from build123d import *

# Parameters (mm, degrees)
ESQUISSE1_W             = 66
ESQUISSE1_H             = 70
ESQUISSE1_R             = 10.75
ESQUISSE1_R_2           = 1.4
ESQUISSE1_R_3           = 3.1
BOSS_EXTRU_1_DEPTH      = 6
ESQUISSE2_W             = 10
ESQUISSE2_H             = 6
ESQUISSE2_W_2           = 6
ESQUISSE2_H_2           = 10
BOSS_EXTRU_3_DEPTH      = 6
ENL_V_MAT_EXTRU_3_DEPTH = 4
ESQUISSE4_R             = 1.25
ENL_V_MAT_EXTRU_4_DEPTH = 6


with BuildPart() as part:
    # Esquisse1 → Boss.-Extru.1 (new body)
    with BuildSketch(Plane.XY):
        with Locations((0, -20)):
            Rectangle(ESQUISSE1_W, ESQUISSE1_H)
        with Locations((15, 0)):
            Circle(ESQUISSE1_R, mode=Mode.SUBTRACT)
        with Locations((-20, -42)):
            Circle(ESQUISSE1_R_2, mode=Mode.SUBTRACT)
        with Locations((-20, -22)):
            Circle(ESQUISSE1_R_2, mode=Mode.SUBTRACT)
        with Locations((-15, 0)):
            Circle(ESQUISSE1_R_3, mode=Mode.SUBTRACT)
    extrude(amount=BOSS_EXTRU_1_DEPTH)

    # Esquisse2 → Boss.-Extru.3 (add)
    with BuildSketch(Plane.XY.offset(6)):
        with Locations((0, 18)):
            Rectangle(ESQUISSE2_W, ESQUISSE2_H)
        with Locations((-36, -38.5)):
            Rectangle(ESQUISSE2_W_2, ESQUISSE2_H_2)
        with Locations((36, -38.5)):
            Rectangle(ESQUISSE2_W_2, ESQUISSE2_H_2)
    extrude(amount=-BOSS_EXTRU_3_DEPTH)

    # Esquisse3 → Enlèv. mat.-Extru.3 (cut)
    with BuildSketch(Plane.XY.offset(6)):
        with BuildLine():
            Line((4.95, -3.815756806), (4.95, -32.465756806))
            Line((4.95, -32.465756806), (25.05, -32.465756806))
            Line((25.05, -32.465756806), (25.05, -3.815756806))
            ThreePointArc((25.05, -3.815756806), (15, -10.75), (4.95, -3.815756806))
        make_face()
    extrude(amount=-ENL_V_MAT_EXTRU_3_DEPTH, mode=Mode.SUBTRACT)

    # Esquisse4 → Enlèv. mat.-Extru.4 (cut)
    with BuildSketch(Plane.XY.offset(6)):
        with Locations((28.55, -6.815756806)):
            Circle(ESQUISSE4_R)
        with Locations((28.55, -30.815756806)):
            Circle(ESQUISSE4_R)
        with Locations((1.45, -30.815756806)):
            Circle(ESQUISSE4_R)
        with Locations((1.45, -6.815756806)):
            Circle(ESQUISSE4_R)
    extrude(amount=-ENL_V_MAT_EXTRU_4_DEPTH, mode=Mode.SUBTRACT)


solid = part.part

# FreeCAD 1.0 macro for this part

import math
import FreeCAD as App
import Part
import Sketcher

V = App.Vector
Q = App.Units.Quantity

doc = App.newDocument("Part")
body = doc.addObject("PartDesign::Body", "Body")

# Sketch on XY plane
sketch1 = body.newObject("Sketcher::SketchObject", "Sketch")
sketch1.AttachmentSupport = (doc.getObject("XY_Plane"), [""])
sketch1.MapMode = "FlatFace"
sketch1.addGeometry(Part.LineSegment(V(-33, 15, 0), V(-33, -55, 0)), False)
sketch1.addGeometry(Part.LineSegment(V(-33, -55, 0), V(33, -55, 0)), False)
sketch1.addGeometry(Part.LineSegment(V(33, -55, 0), V(33, 15, 0)), False)
sketch1.addGeometry(Part.LineSegment(V(33, 15, 0), V(-33, 15, 0)), False)
sketch1.addGeometry(Part.Circle(V(-20, -42, 0), V(0, 0, 1), 1.4), False)
sketch1.addGeometry(Part.Circle(V(-20, -22, 0), V(0, 0, 1), 1.4), False)
sketch1.addGeometry(Part.Circle(V(-15, 0, 0), V(0, 0, 1), 3.1), False)
sketch1.addGeometry(Part.Circle(V(15, 0, 0), V(0, 0, 1), 10.8), False)
sketch1.addConstraint(Sketcher.Constraint("Coincident", 0, 2, 1, 1))
sketch1.addConstraint(Sketcher.Constraint("Coincident", 1, 2, 2, 1))
sketch1.addConstraint(Sketcher.Constraint("Coincident", 2, 2, 3, 1))
sketch1.addConstraint(Sketcher.Constraint("Coincident", 3, 2, 0, 1))
sketch1.addConstraint(Sketcher.Constraint("Vertical", 0))
sketch1.addConstraint(Sketcher.Constraint("Horizontal", 1))
sketch1.addConstraint(Sketcher.Constraint("Vertical", 2))
sketch1.addConstraint(Sketcher.Constraint("Horizontal", 3))
sketch1.addConstraint(Sketcher.Constraint("Equal", 4, 5))
sketch1.addConstraint(Sketcher.Constraint("Symmetric", 6, 3, 7, 3, -1, 1))
sketch1.addConstraint(Sketcher.Constraint("PointOnObject", 6, 3, -1))
sketch1.addConstraint(Sketcher.Constraint("Vertical", 4, 3, 5, 3))
sketch1.addConstraint(Sketcher.Constraint("Diameter", 4, Q("2.8 mm")))
sketch1.addConstraint(Sketcher.Constraint("Diameter", 6, Q("6.2 mm")))
sketch1.addConstraint(Sketcher.Constraint("Diameter", 7, Q("21.5 mm")))
sketch1.addConstraint(Sketcher.Constraint("DistanceX", 1, 1, 1, 2, Q("66 mm")))
sketch1.addConstraint(Sketcher.Constraint("DistanceY", 0, 2, 0, 1, Q("70 mm")))
sketch1.addConstraint(Sketcher.Constraint("DistanceX", 4, 3, -1, 1, Q("20 mm")))
sketch1.addConstraint(Sketcher.Constraint("DistanceY", 4, 3, -1, 1, Q("42 mm")))
sketch1.addConstraint(Sketcher.Constraint("DistanceY", 5, 3, -1, 1, Q("22 mm")))
sketch1.addConstraint(Sketcher.Constraint("DistanceX", 6, 3, -1, 1, Q("15 mm")))
sketch1.addConstraint(Sketcher.Constraint("DistanceX", 0, 2, -1, 1, Q("33 mm")))
sketch1.addConstraint(Sketcher.Constraint("DistanceY", 0, 2, -1, 1, Q("55 mm")))
pad1 = body.newObject("PartDesign::Pad", "Pad")
pad1.Profile = sketch1
pad1.Length = 6

# Sketch on XY plane
sketch2 = body.newObject("Sketcher::SketchObject", "Sketch001")
sketch2.AttachmentSupport = (doc.getObject("XY_Plane"), [""])
sketch2.MapMode = "FlatFace"
sketch2.AttachmentOffset = App.Placement(V(0, 0, 6), App.Rotation())
sketch2.addGeometry(Part.LineSegment(V(-5, 21, 0), V(-5, 15, 0)), False)
sketch2.addGeometry(Part.LineSegment(V(-5, 15, 0), V(5, 15, 0)), False)
sketch2.addGeometry(Part.LineSegment(V(5, 15, 0), V(5, 21, 0)), False)
sketch2.addGeometry(Part.LineSegment(V(5, 21, 0), V(-5, 21, 0)), False)
sketch2.addGeometry(Part.LineSegment(V(-39, -34, 0), V(-39, -44, 0)), False)
sketch2.addGeometry(Part.LineSegment(V(-39, -44, 0), V(-33, -44, 0)), False)
sketch2.addGeometry(Part.LineSegment(V(-33, -44, 0), V(-33, -34, 0)), False)
sketch2.addGeometry(Part.LineSegment(V(-33, -34, 0), V(-39, -34, 0)), False)
sketch2.addGeometry(Part.LineSegment(V(33, -34, 0), V(33, -44, 0)), False)
sketch2.addGeometry(Part.LineSegment(V(33, -44, 0), V(39, -44, 0)), False)
sketch2.addGeometry(Part.LineSegment(V(39, -44, 0), V(39, -34, 0)), False)
sketch2.addGeometry(Part.LineSegment(V(39, -34, 0), V(33, -34, 0)), False)
sketch2.addConstraint(Sketcher.Constraint("Coincident", 0, 2, 1, 1))
sketch2.addConstraint(Sketcher.Constraint("Coincident", 1, 2, 2, 1))
sketch2.addConstraint(Sketcher.Constraint("Coincident", 2, 2, 3, 1))
sketch2.addConstraint(Sketcher.Constraint("Coincident", 3, 2, 0, 1))
sketch2.addConstraint(Sketcher.Constraint("Coincident", 4, 2, 5, 1))
sketch2.addConstraint(Sketcher.Constraint("Coincident", 5, 2, 6, 1))
sketch2.addConstraint(Sketcher.Constraint("Coincident", 6, 2, 7, 1))
sketch2.addConstraint(Sketcher.Constraint("Coincident", 7, 2, 4, 1))
sketch2.addConstraint(Sketcher.Constraint("Coincident", 8, 2, 9, 1))
sketch2.addConstraint(Sketcher.Constraint("Coincident", 9, 2, 10, 1))
sketch2.addConstraint(Sketcher.Constraint("Coincident", 10, 2, 11, 1))
sketch2.addConstraint(Sketcher.Constraint("Coincident", 11, 2, 8, 1))
sketch2.addConstraint(Sketcher.Constraint("Vertical", 0))
sketch2.addConstraint(Sketcher.Constraint("Horizontal", 1))
sketch2.addConstraint(Sketcher.Constraint("Vertical", 2))
sketch2.addConstraint(Sketcher.Constraint("Horizontal", 3))
sketch2.addConstraint(Sketcher.Constraint("Vertical", 4))
sketch2.addConstraint(Sketcher.Constraint("Horizontal", 5))
sketch2.addConstraint(Sketcher.Constraint("Vertical", 6))
sketch2.addConstraint(Sketcher.Constraint("Horizontal", 7))
sketch2.addConstraint(Sketcher.Constraint("Vertical", 8))
sketch2.addConstraint(Sketcher.Constraint("Horizontal", 9))
sketch2.addConstraint(Sketcher.Constraint("Vertical", 10))
sketch2.addConstraint(Sketcher.Constraint("Horizontal", 11))
sketch2.addConstraint(Sketcher.Constraint("Symmetric", 5, 2, 8, 2, -2))
sketch2.addConstraint(Sketcher.Constraint("Symmetric", 7, 2, 10, 2, -2))
sketch2.addConstraint(Sketcher.Constraint("Equal", 11, 0))
sketch2.addConstraint(Sketcher.Constraint("Equal", 3, 4))
sketch2.addConstraint(Sketcher.Constraint("DistanceX", 1, 1, 1, 2, Q("10 mm")))
sketch2.addConstraint(Sketcher.Constraint("DistanceX", 5, 1, 5, 2, Q("6 mm")))
sketch2.addConstraint(Sketcher.Constraint("DistanceX", 0, 2, -1, 1, Q("5 mm")))
sketch2.addConstraint(Sketcher.Constraint("DistanceY", -1, 1, 0, 2, Q("15 mm")))
sketch2.addConstraint(Sketcher.Constraint("DistanceX", 4, 2, -1, 1, Q("39 mm")))
sketch2.addConstraint(Sketcher.Constraint("DistanceY", 4, 2, -1, 1, Q("43.5 mm")))
pad2 = body.newObject("PartDesign::Pad", "Pad001")
pad2.Profile = sketch2
pad2.Length = 6
pad2.Reversed = True

# Sketch on XY plane
sketch3 = body.newObject("Sketcher::SketchObject", "Sketch002")
sketch3.AttachmentSupport = (doc.getObject("XY_Plane"), [""])
sketch3.MapMode = "FlatFace"
sketch3.AttachmentOffset = App.Placement(V(0, 0, 6), App.Rotation())
sketch3.addGeometry(Part.LineSegment(V(5, -4, 0), V(5, -32, 0)), False)
sketch3.addGeometry(Part.LineSegment(V(5, -32, 0), V(25, -32, 0)), False)
sketch3.addGeometry(Part.LineSegment(V(25, -32, 0), V(25, -4, 0)), False)
sketch3.addGeometry(Part.ArcOfCircle(Part.Circle(V(15, 0, 0), V(0, 0, 1), 11), math.radians(-159), math.radians(-21)), False)
sketch3.addConstraint(Sketcher.Constraint("Coincident", 0, 2, 1, 1))
sketch3.addConstraint(Sketcher.Constraint("Coincident", 1, 2, 2, 1))
sketch3.addConstraint(Sketcher.Constraint("Coincident", 2, 2, 3, 2))
sketch3.addConstraint(Sketcher.Constraint("Coincident", 3, 1, 0, 1))
sketch3.addConstraint(Sketcher.Constraint("Vertical", 0))
sketch3.addConstraint(Sketcher.Constraint("Horizontal", 1))
sketch3.addConstraint(Sketcher.Constraint("Vertical", 2))
sketch3.addConstraint(Sketcher.Constraint("PointOnObject", 3, 3, -1))
sketch3.addConstraint(Sketcher.Constraint("Horizontal", 2, 2, 3, 1))
sketch3.addConstraint(Sketcher.Constraint("Radius", 3, Q("10.75 mm")))
sketch3.addConstraint(Sketcher.Constraint("DistanceX", 1, 1, 1, 2, Q("20.1 mm")))
sketch3.addConstraint(Sketcher.Constraint("DistanceX", -1, 1, 3, 3, Q("15 mm")))
sketch3.addConstraint(Sketcher.Constraint("DistanceY", 0, 2, 0, 1, Q("28.65 mm")))
pocket1 = body.newObject("PartDesign::Pocket", "Pocket")
pocket1.Profile = sketch3
pocket1.Length = 4

# Sketch on XY plane
sketch4 = body.newObject("Sketcher::SketchObject", "Sketch003")
sketch4.AttachmentSupport = (doc.getObject("XY_Plane"), [""])
sketch4.MapMode = "FlatFace"
sketch4.AttachmentOffset = App.Placement(V(0, 0, 6), App.Rotation())
sketch4.addGeometry(Part.Circle(V(28.6, -6.8, 0), V(0, 0, 1), 1.2), False)
sketch4.addGeometry(Part.Circle(V(28.6, -30.8, 0), V(0, 0, 1), 1.2), False)
sketch4.addGeometry(Part.Circle(V(1.4, -30.8, 0), V(0, 0, 1), 1.2), False)
sketch4.addGeometry(Part.Circle(V(1.4, -6.8, 0), V(0, 0, 1), 1.2), False)
sketch4.addConstraint(Sketcher.Constraint("Equal", 0, 1))
sketch4.addConstraint(Sketcher.Constraint("Equal", 1, 2))
sketch4.addConstraint(Sketcher.Constraint("Equal", 2, 3))
sketch4.addConstraint(Sketcher.Constraint("Horizontal", 1, 3, 2, 3))
sketch4.addConstraint(Sketcher.Constraint("Horizontal", 0, 3, 3, 3))
sketch4.addConstraint(Sketcher.Constraint("Vertical", 0, 3, 1, 3))
sketch4.addConstraint(Sketcher.Constraint("Vertical", 2, 3, 3, 3))
sketch4.addConstraint(Sketcher.Constraint("Diameter", 0, Q("2.5 mm")))
sketch4.addConstraint(Sketcher.Constraint("DistanceY", 1, 3, 0, 3, Q("24 mm")))
sketch4.addConstraint(Sketcher.Constraint("DistanceX", 2, 3, 1, 3, Q("27.1 mm")))
sketch4.addConstraint(Sketcher.Constraint("DistanceX", -1, 1, 0, 3, Q("28.55 mm")))
sketch4.addConstraint(Sketcher.Constraint("DistanceY", 0, 3, -1, 1, Q("6.815757 mm")))
pocket2 = body.newObject("PartDesign::Pocket", "Pocket001")
pocket2.Profile = sketch4
pocket2.Length = 6

doc.recompute()
